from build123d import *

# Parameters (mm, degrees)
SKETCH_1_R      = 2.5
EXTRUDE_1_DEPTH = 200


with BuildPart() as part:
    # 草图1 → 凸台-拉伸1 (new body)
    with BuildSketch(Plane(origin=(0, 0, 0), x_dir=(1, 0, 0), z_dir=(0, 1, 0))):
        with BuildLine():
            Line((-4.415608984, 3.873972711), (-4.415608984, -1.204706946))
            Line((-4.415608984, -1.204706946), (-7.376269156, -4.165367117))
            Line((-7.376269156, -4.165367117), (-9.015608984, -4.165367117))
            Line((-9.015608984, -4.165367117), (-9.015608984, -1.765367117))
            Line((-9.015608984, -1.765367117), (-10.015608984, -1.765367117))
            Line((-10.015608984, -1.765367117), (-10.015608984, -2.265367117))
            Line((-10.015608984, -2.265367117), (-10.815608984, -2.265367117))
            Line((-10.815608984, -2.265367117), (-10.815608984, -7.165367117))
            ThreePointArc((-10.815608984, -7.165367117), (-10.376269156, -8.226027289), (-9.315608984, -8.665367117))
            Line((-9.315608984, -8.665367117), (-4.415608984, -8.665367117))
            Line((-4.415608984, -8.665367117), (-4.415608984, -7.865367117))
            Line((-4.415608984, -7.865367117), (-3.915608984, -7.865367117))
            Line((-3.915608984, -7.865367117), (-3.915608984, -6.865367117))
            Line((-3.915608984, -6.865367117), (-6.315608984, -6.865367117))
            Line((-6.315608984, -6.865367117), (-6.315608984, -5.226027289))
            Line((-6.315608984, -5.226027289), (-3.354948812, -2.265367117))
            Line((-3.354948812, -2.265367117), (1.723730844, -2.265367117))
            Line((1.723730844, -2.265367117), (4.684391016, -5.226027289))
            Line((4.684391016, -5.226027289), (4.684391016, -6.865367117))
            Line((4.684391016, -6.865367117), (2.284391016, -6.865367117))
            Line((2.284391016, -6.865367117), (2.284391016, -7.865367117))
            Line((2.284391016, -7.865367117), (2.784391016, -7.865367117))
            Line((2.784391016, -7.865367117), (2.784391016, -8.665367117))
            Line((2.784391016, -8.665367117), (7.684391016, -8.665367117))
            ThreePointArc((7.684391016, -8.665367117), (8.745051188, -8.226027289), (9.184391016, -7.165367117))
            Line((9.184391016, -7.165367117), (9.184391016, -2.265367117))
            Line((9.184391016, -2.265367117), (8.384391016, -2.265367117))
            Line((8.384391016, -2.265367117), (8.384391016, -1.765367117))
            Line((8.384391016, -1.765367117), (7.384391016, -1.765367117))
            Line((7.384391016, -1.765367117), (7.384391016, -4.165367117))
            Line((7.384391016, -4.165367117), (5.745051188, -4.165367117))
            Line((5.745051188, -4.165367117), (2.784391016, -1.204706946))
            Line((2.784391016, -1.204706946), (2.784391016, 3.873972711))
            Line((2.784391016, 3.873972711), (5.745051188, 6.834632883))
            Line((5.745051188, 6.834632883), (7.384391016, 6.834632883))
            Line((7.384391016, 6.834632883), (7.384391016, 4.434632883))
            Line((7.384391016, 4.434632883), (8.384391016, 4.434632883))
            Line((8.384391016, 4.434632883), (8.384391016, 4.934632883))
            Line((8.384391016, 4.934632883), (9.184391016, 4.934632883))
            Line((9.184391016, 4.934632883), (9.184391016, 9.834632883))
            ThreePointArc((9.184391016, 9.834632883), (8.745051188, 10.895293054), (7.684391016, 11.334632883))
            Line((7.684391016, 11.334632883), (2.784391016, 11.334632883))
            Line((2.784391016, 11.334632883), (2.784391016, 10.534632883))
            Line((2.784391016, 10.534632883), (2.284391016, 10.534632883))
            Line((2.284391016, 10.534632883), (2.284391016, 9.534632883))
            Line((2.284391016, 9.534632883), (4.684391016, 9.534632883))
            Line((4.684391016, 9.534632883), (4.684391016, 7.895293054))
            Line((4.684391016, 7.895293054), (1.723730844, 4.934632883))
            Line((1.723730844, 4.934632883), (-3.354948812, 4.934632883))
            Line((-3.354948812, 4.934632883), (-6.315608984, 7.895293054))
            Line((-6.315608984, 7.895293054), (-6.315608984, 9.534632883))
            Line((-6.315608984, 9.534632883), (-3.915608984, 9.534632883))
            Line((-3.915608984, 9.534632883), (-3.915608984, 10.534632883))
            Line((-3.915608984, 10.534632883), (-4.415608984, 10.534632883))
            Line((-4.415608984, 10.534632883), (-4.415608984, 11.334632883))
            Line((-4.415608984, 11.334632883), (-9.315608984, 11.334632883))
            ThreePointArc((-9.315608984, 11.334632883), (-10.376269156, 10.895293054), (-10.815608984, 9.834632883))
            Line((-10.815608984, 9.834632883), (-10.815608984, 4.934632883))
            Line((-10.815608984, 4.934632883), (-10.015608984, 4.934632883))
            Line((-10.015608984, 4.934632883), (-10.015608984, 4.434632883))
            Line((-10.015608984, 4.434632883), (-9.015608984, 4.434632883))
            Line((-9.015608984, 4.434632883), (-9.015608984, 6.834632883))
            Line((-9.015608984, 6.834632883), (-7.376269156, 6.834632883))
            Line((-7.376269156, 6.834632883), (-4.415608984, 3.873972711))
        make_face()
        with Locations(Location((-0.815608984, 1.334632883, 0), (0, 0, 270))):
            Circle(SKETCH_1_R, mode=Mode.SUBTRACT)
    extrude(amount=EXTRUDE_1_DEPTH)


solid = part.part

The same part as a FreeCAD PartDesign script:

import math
import FreeCAD as App
import Part
import Sketcher
Q = App.Units.Quantity

doc = App.newDocument("Part")
body = doc.addObject("PartDesign::Body", "Body")

# Sketch on XZ plane
sketch1 = body.newObject("Sketcher::SketchObject", "Sketch")
sketch1.AttachmentSupport = (doc.getObject("XZ_Plane"), [""])
sketch1.MapMode = "FlatFace"
sketch1.addGeometry([
    Part.LineSegment(App.Vector(-4.42, -3.87, 0), App.Vector(-4.42, 1.2, 0)),  # 0
    Part.LineSegment(App.Vector(-4.42, 1.2, 0), App.Vector(-7.38, 4.17, 0)),  # 1
    Part.LineSegment(App.Vector(-7.38, 4.17, 0), App.Vector(-9.02, 4.17, 0)),  # 2
    Part.LineSegment(App.Vector(-9.02, 4.17, 0), App.Vector(-9.02, 1.77, 0)),  # 3
    Part.LineSegment(App.Vector(-9.02, 1.77, 0), App.Vector(-10.02, 1.77, 0)),  # 4
    Part.LineSegment(App.Vector(-10.02, 1.77, 0), App.Vector(-10.02, 2.27, 0)),  # 5
    Part.LineSegment(App.Vector(-10.02, 2.27, 0), App.Vector(-10.82, 2.27, 0)),  # 6
    Part.LineSegment(App.Vector(-10.82, 2.27, 0), App.Vector(-10.82, 7.17, 0)),  # 7
    Part.ArcOfCircle(Part.Circle(App.Vector(-9.32, 7.17, 0), App.Vector(0, 0, 1), 1.5), math.radians(90), math.radians(180)),  # 8
    Part.LineSegment(App.Vector(-9.32, 8.67, 0), App.Vector(-4.42, 8.67, 0)),  # 9
    Part.LineSegment(App.Vector(-4.42, 8.67, 0), App.Vector(-4.42, 7.87, 0)),  # 10
    Part.LineSegment(App.Vector(-4.42, 7.87, 0), App.Vector(-3.92, 7.87, 0)),  # 11
    Part.LineSegment(App.Vector(-3.92, 7.87, 0), App.Vector(-3.92, 6.87, 0)),  # 12
    Part.LineSegment(App.Vector(-3.92, 6.87, 0), App.Vector(-6.32, 6.87, 0)),  # 13
    Part.LineSegment(App.Vector(-6.32, 6.87, 0), App.Vector(-6.32, 5.23, 0)),  # 14
    Part.LineSegment(App.Vector(-6.32, 5.23, 0), App.Vector(-3.35, 2.27, 0)),  # 15
    Part.LineSegment(App.Vector(-3.35, 2.27, 0), App.Vector(1.72, 2.27, 0)),  # 16
    Part.LineSegment(App.Vector(1.72, 2.27, 0), App.Vector(4.68, 5.23, 0)),  # 17
    Part.LineSegment(App.Vector(4.68, 5.23, 0), App.Vector(4.68, 6.87, 0)),  # 18
    Part.LineSegment(App.Vector(4.68, 6.87, 0), App.Vector(2.28, 6.87, 0)),  # 19
    Part.LineSegment(App.Vector(2.28, 6.87, 0), App.Vector(2.28, 7.87, 0)),  # 20
    Part.LineSegment(App.Vector(2.28, 7.87, 0), App.Vector(2.78, 7.87, 0)),  # 21
    Part.LineSegment(App.Vector(2.78, 7.87, 0), App.Vector(2.78, 8.67, 0)),  # 22
    Part.LineSegment(App.Vector(2.78, 8.67, 0), App.Vector(7.68, 8.67, 0)),  # 23
    Part.ArcOfCircle(Part.Circle(App.Vector(7.68, 7.17, 0), App.Vector(0, 0, 1), 1.5), math.radians(0), math.radians(90)),  # 24
    Part.LineSegment(App.Vector(9.18, 7.17, 0), App.Vector(9.18, 2.27, 0)),  # 25
    Part.LineSegment(App.Vector(9.18, 2.27, 0), App.Vector(8.38, 2.27, 0)),  # 26
    Part.LineSegment(App.Vector(8.38, 2.27, 0), App.Vector(8.38, 1.77, 0)),  # 27
    Part.LineSegment(App.Vector(8.38, 1.77, 0), App.Vector(7.38, 1.77, 0)),  # 28
    Part.LineSegment(App.Vector(7.38, 1.77, 0), App.Vector(7.38, 4.17, 0)),  # 29
    Part.LineSegment(App.Vector(7.38, 4.17, 0), App.Vector(5.75, 4.17, 0)),  # 30
    Part.LineSegment(App.Vector(5.75, 4.17, 0), App.Vector(2.78, 1.2, 0)),  # 31
    Part.LineSegment(App.Vector(2.78, 1.2, 0), App.Vector(2.78, -3.87, 0)),  # 32
    Part.LineSegment(App.Vector(2.78, -3.87, 0), App.Vector(5.75, -6.83, 0)),  # 33
    Part.LineSegment(App.Vector(5.75, -6.83, 0), App.Vector(7.38, -6.83, 0)),  # 34
    Part.LineSegment(App.Vector(7.38, -6.83, 0), App.Vector(7.38, -4.43, 0)),  # 35
    Part.LineSegment(App.Vector(7.38, -4.43, 0), App.Vector(8.38, -4.43, 0)),  # 36
    Part.LineSegment(App.Vector(8.38, -4.43, 0), App.Vector(8.38, -4.93, 0)),  # 37
    Part.LineSegment(App.Vector(8.38, -4.93, 0), App.Vector(9.18, -4.93, 0)),  # 38
    Part.LineSegment(App.Vector(9.18, -4.93, 0), App.Vector(9.18, -9.83, 0)),  # 39
    Part.ArcOfCircle(Part.Circle(App.Vector(7.68, -9.83, 0), App.Vector(0, 0, 1), 1.5), math.radians(-90), math.radians(0)),  # 40
    Part.LineSegment(App.Vector(7.68, -11.33, 0), App.Vector(2.78, -11.33, 0)),  # 41
    Part.LineSegment(App.Vector(2.78, -11.33, 0), App.Vector(2.78, -10.53, 0)),  # 42
    Part.LineSegment(App.Vector(2.78, -10.53, 0), App.Vector(2.28, -10.53, 0)),  # 43
    Part.LineSegment(App.Vector(2.28, -10.53, 0), App.Vector(2.28, -9.53, 0)),  # 44
    Part.LineSegment(App.Vector(2.28, -9.53, 0), App.Vector(4.68, -9.53, 0)),  # 45
    Part.LineSegment(App.Vector(4.68, -9.53, 0), App.Vector(4.68, -7.9, 0)),  # 46
    Part.LineSegment(App.Vector(4.68, -7.9, 0), App.Vector(1.72, -4.93, 0)),  # 47
    Part.LineSegment(App.Vector(1.72, -4.93, 0), App.Vector(-3.35, -4.93, 0)),  # 48
    Part.LineSegment(App.Vector(-3.35, -4.93, 0), App.Vector(-6.32, -7.9, 0)),  # 49
    Part.LineSegment(App.Vector(-6.32, -7.9, 0), App.Vector(-6.32, -9.53, 0)),  # 50
    Part.LineSegment(App.Vector(-6.32, -9.53, 0), App.Vector(-3.92, -9.53, 0)),  # 51
    Part.LineSegment(App.Vector(-3.92, -9.53, 0), App.Vector(-3.92, -10.53, 0)),  # 52
    Part.LineSegment(App.Vector(-3.92, -10.53, 0), App.Vector(-4.42, -10.53, 0)),  # 53
    Part.LineSegment(App.Vector(-4.42, -10.53, 0), App.Vector(-4.42, -11.33, 0)),  # 54
    Part.LineSegment(App.Vector(-4.42, -11.33, 0), App.Vector(-9.32, -11.33, 0)),  # 55
    Part.ArcOfCircle(Part.Circle(App.Vector(-9.32, -9.83, 0), App.Vector(0, 0, 1), 1.5), math.radians(-180), math.radians(-90)),  # 56
    Part.LineSegment(App.Vector(-10.82, -9.83, 0), App.Vector(-10.82, -4.93, 0)),  # 57
    Part.LineSegment(App.Vector(-10.82, -4.93, 0), App.Vector(-10.02, -4.93, 0)),  # 58
    Part.LineSegment(App.Vector(-10.02, -4.93, 0), App.Vector(-10.02, -4.43, 0)),  # 59
    Part.LineSegment(App.Vector(-10.02, -4.43, 0), App.Vector(-9.02, -4.43, 0)),  # 60
    Part.LineSegment(App.Vector(-9.02, -4.43, 0), App.Vector(-9.02, -6.83, 0)),  # 61
    Part.LineSegment(App.Vector(-9.02, -6.83, 0), App.Vector(-7.38, -6.83, 0)),  # 62
    Part.LineSegment(App.Vector(-7.38, -6.83, 0), App.Vector(-4.42, -3.87, 0)),  # 63
    Part.Circle(App.Vector(-0.82, -1.33, 0), App.Vector(0, 0, 1), 2.5),  # 64
], False)
sketch1.addConstraint([
    Sketcher.Constraint("Coincident", 0, 2, 1, 1),
    Sketcher.Constraint("Coincident", 1, 2, 2, 1),
    Sketcher.Constraint("Coincident", 2, 2, 3, 1),
    Sketcher.Constraint("Coincident", 3, 2, 4, 1),
    Sketcher.Constraint("Coincident", 4, 2, 5, 1),
    Sketcher.Constraint("Coincident", 5, 2, 6, 1),
    Sketcher.Constraint("Coincident", 6, 2, 7, 1),
    Sketcher.Constraint("Tangent", 7, 2, 8, 2),
    Sketcher.Constraint("Tangent", 8, 1, 9, 1),
    Sketcher.Constraint("Coincident", 9, 2, 10, 1),
    Sketcher.Constraint("Coincident", 10, 2, 11, 1),
    Sketcher.Constraint("Coincident", 11, 2, 12, 1),
    Sketcher.Constraint("Coincident", 12, 2, 13, 1),
    Sketcher.Constraint("Coincident", 13, 2, 14, 1),
    Sketcher.Constraint("Coincident", 14, 2, 15, 1),
    Sketcher.Constraint("Coincident", 15, 2, 16, 1),
    Sketcher.Constraint("Coincident", 16, 2, 17, 1),
    Sketcher.Constraint("Coincident", 17, 2, 18, 1),
    Sketcher.Constraint("Coincident", 18, 2, 19, 1),
    Sketcher.Constraint("Coincident", 19, 2, 20, 1),
    Sketcher.Constraint("Coincident", 20, 2, 21, 1),
    Sketcher.Constraint("Coincident", 21, 2, 22, 1),
    Sketcher.Constraint("Coincident", 22, 2, 23, 1),
    Sketcher.Constraint("Tangent", 23, 2, 24, 2),
    Sketcher.Constraint("Tangent", 24, 1, 25, 1),
    Sketcher.Constraint("Coincident", 25, 2, 26, 1),
    Sketcher.Constraint("Coincident", 26, 2, 27, 1),
    Sketcher.Constraint("Coincident", 27, 2, 28, 1),
    Sketcher.Constraint("Coincident", 28, 2, 29, 1),
    Sketcher.Constraint("Coincident", 29, 2, 30, 1),
    Sketcher.Constraint("Coincident", 30, 2, 31, 1),
    Sketcher.Constraint("Coincident", 31, 2, 32, 1),
    Sketcher.Constraint("Coincident", 32, 2, 33, 1),
    Sketcher.Constraint("Coincident", 33, 2, 34, 1),
    Sketcher.Constraint("Coincident", 34, 2, 35, 1),
    Sketcher.Constraint("Coincident", 35, 2, 36, 1),
    Sketcher.Constraint("Coincident", 36, 2, 37, 1),
    Sketcher.Constraint("Coincident", 37, 2, 38, 1),
    Sketcher.Constraint("Coincident", 38, 2, 39, 1),
    Sketcher.Constraint("Tangent", 39, 2, 40, 2),
    Sketcher.Constraint("Tangent", 40, 1, 41, 1),
    Sketcher.Constraint("Coincident", 41, 2, 42, 1),
    Sketcher.Constraint("Coincident", 42, 2, 43, 1),
    Sketcher.Constraint("Coincident", 43, 2, 44, 1),
    Sketcher.Constraint("Coincident", 44, 2, 45, 1),
    Sketcher.Constraint("Coincident", 45, 2, 46, 1),
    Sketcher.Constraint("Coincident", 46, 2, 47, 1),
    Sketcher.Constraint("Coincident", 47, 2, 48, 1),
    Sketcher.Constraint("Coincident", 48, 2, 49, 1),
    Sketcher.Constraint("Coincident", 49, 2, 50, 1),
    Sketcher.Constraint("Coincident", 50, 2, 51, 1),
    Sketcher.Constraint("Coincident", 51, 2, 52, 1),
    Sketcher.Constraint("Coincident", 52, 2, 53, 1),
    Sketcher.Constraint("Coincident", 53, 2, 54, 1),
    Sketcher.Constraint("Coincident", 54, 2, 55, 1),
    Sketcher.Constraint("Tangent", 55, 2, 56, 2),
    Sketcher.Constraint("Tangent", 56, 1, 57, 1),
    Sketcher.Constraint("Coincident", 57, 2, 58, 1),
    Sketcher.Constraint("Coincident", 58, 2, 59, 1),
    Sketcher.Constraint("Coincident", 59, 2, 60, 1),
    Sketcher.Constraint("Coincident", 60, 2, 61, 1),
    Sketcher.Constraint("Coincident", 61, 2, 62, 1),
    Sketcher.Constraint("Coincident", 62, 2, 63, 1),
    Sketcher.Constraint("Coincident", 63, 2, 0, 1),
    Sketcher.Constraint("Vertical", 0),
    Sketcher.Constraint("Horizontal", 2),
    Sketcher.Constraint("Vertical", 3),
    Sketcher.Constraint("Horizontal", 4),
    Sketcher.Constraint("Vertical", 5),
    Sketcher.Constraint("Horizontal", 6),
    Sketcher.Constraint("Vertical", 7),
    Sketcher.Constraint("Horizontal", 9),
    Sketcher.Constraint("Vertical", 10),
    Sketcher.Constraint("Horizontal", 11),
    Sketcher.Constraint("Vertical", 12),
    Sketcher.Constraint("Horizontal", 13),
    Sketcher.Constraint("Vertical", 14),
    Sketcher.Constraint("Horizontal", 16),
    Sketcher.Constraint("Vertical", 18),
    Sketcher.Constraint("Horizontal", 19),
    Sketcher.Constraint("Vertical", 20),
    Sketcher.Constraint("Horizontal", 21),
    Sketcher.Constraint("Vertical", 22),
    Sketcher.Constraint("Horizontal", 23),
    Sketcher.Constraint("Vertical", 25),
    Sketcher.Constraint("Horizontal", 26),
    Sketcher.Constraint("Vertical", 27),
    Sketcher.Constraint("Horizontal", 28),
    Sketcher.Constraint("Vertical", 29),
    Sketcher.Constraint("Horizontal", 30),
    Sketcher.Constraint("Vertical", 32),
    Sketcher.Constraint("Horizontal", 34),
    Sketcher.Constraint("Vertical", 35),
    Sketcher.Constraint("Horizontal", 36),
    Sketcher.Constraint("Vertical", 37),
    Sketcher.Constraint("Horizontal", 38),
    Sketcher.Constraint("Vertical", 39),
    Sketcher.Constraint("Horizontal", 41),
    Sketcher.Constraint("Vertical", 42),
    Sketcher.Constraint("Horizontal", 43),
    Sketcher.Constraint("Vertical", 44),
    Sketcher.Constraint("Horizontal", 45),
    Sketcher.Constraint("Vertical", 46),
    Sketcher.Constraint("Horizontal", 48),
    Sketcher.Constraint("Vertical", 50),
    Sketcher.Constraint("Horizontal", 51),
    Sketcher.Constraint("Vertical", 52),
    Sketcher.Constraint("Horizontal", 53),
    Sketcher.Constraint("Vertical", 54),
    Sketcher.Constraint("Horizontal", 55),
    Sketcher.Constraint("Vertical", 57),
    Sketcher.Constraint("Horizontal", 58),
    Sketcher.Constraint("Vertical", 59),
    Sketcher.Constraint("Horizontal", 60),
    Sketcher.Constraint("Vertical", 61),
    Sketcher.Constraint("Horizontal", 62),
    Sketcher.Constraint("Equal", 8, 24),
    Sketcher.Constraint("Equal", 24, 40),
    Sketcher.Constraint("Equal", 40, 56),
    Sketcher.Constraint("Parallel", 1, 15),
    Sketcher.Constraint("Perpendicular", 15, 17),
    Sketcher.Constraint("Parallel", 17, 31),
    Sketcher.Constraint("Perpendicular", 31, 33),
    Sketcher.Constraint("Parallel", 33, 47),
    Sketcher.Constraint("Perpendicular", 47, 49),
    Sketcher.Constraint("Parallel", 49, 63),
    Sketcher.Constraint("Horizontal", 8, 3, 24, 3),
    Sketcher.Constraint("Horizontal", 40, 3, 56, 3),
    Sketcher.Constraint("Horizontal", 6, 2, 15, 2),
    Sketcher.Constraint("Horizontal", 14, 2, 17, 2),
    Sketcher.Constraint("Horizontal", 13, 2, 18, 2),
    Sketcher.Constraint("Horizontal", 11, 2, 20, 2),
    Sketcher.Constraint("Horizontal", 16, 2, 25, 2),
    Sketcher.Constraint("Horizontal", 4, 2, 27, 2),
    Sketcher.Constraint("Horizontal", 2, 2, 29, 2),
    Sketcher.Constraint("Horizontal", 0, 2, 31, 2),
    Sketcher.Constraint("Horizontal", 38, 2, 47, 2),
    Sketcher.Constraint("Horizontal", 46, 2, 49, 2),
    Sketcher.Constraint("Horizontal", 45, 2, 50, 2),
    Sketcher.Constraint("Horizontal", 43, 2, 52, 2),
    Sketcher.Constraint("Horizontal", 48, 2, 57, 2),
    Sketcher.Constraint("Horizontal", 36, 2, 59, 2),
    Sketcher.Constraint("Horizontal", 34, 2, 61, 2),
    Sketcher.Constraint("Horizontal", 32, 2, 63, 2),
    Sketcher.Constraint("Vertical", 24, 3, 40, 3),
    Sketcher.Constraint("Vertical", 8, 3, 56, 3),
    Sketcher.Constraint("Vertical", 0, 2, 9, 2),
    Sketcher.Constraint("Vertical", 22, 2, 31, 2),
    Sketcher.Constraint("Vertical", 30, 2, 33, 2),
    Sketcher.Constraint("Vertical", 29, 2, 34, 2),
    Sketcher.Constraint("Vertical", 27, 2, 36, 2),
    Sketcher.Constraint("Vertical", 32, 2, 41, 2),
    Sketcher.Constraint("Vertical", 20, 2, 43, 2),
    Sketcher.Constraint("Vertical", 18, 2, 45, 2),
    Sketcher.Constraint("Vertical", 16, 2, 47, 2),
    Sketcher.Constraint("Vertical", 15, 2, 48, 2),
    Sketcher.Constraint("Vertical", 14, 2, 49, 2),
    Sketcher.Constraint("Vertical", 12, 2, 51, 2),
    Sketcher.Constraint("Vertical", 10, 2, 53, 2),
    Sketcher.Constraint("Vertical", 5, 2, 58, 2),
    Sketcher.Constraint("Vertical", 3, 2, 60, 2),
    Sketcher.Constraint("Equal", 13, 19),
    Sketcher.Constraint("Equal", 11, 21),
    Sketcher.Constraint("Equal", 9, 23),
    Sketcher.Constraint("Equal", 6, 26),
    Sketcher.Constraint("Equal", 4, 28),
    Sketcher.Constraint("Equal", 48, 0),
    Sketcher.Constraint("Equal", 51, 3),
    Sketcher.Constraint("Equal", 53, 5),
    Sketcher.Constraint("Equal", 55, 7),
    Sketcher.Constraint("Equal", 58, 10),
    Sketcher.Constraint("Equal", 60, 12),
    Sketcher.Constraint("Equal", 62, 14),
    Sketcher.Constraint("Equal", 29, 35),
    Sketcher.Constraint("Equal", 27, 37),
    Sketcher.Constraint("Equal", 25, 39),
    Sketcher.Constraint("Equal", 22, 42),
    Sketcher.Constraint("Equal", 20, 44),
    Sketcher.Constraint("Diameter", 64, Q("5 mm")),
    Sketcher.Constraint("Radius", 8, Q("1.5 mm")),
    Sketcher.Constraint("DistanceX", 4, 2, 4, 1, Q("1 mm")),
    Sketcher.Constraint("DistanceX", 6, 2, 6, 1, Q("0.8 mm")),
    Sketcher.Constraint("DistanceX", 9, 1, 9, 2, Q("4.9 mm")),
    Sketcher.Constraint("DistanceX", 11, 1, 11, 2, Q("0.5 mm")),
    Sketcher.Constraint("DistanceX", 13, 2, 13, 1, Q("2.4 mm")),
    Sketcher.Constraint("DistanceX", 2, 2, 2, 1, Q("1.63934 mm")),
    Sketcher.Constraint("DistanceX", 16, 1, 16, 2, Q("5.07868 mm")),
    Sketcher.Constraint("DistanceX", 8, 3, -1, 1, Q("9.315609 mm")),
    Sketcher.Constraint("DistanceX", 64, 3, -1, 1, Q("0.815609 mm")),
    Sketcher.Constraint("DistanceY", -1, 1, 8, 3, Q("7.165367 mm")),
    Sketcher.Constraint("DistanceY", 64, 3, -1, 1, Q("1.334633 mm")),
])
pad1 = body.newObject("PartDesign::Pad", "Pad")
pad1.Profile = sketch1
pad1.Length = 200
pad1.Reversed = True

doc.recompute()
